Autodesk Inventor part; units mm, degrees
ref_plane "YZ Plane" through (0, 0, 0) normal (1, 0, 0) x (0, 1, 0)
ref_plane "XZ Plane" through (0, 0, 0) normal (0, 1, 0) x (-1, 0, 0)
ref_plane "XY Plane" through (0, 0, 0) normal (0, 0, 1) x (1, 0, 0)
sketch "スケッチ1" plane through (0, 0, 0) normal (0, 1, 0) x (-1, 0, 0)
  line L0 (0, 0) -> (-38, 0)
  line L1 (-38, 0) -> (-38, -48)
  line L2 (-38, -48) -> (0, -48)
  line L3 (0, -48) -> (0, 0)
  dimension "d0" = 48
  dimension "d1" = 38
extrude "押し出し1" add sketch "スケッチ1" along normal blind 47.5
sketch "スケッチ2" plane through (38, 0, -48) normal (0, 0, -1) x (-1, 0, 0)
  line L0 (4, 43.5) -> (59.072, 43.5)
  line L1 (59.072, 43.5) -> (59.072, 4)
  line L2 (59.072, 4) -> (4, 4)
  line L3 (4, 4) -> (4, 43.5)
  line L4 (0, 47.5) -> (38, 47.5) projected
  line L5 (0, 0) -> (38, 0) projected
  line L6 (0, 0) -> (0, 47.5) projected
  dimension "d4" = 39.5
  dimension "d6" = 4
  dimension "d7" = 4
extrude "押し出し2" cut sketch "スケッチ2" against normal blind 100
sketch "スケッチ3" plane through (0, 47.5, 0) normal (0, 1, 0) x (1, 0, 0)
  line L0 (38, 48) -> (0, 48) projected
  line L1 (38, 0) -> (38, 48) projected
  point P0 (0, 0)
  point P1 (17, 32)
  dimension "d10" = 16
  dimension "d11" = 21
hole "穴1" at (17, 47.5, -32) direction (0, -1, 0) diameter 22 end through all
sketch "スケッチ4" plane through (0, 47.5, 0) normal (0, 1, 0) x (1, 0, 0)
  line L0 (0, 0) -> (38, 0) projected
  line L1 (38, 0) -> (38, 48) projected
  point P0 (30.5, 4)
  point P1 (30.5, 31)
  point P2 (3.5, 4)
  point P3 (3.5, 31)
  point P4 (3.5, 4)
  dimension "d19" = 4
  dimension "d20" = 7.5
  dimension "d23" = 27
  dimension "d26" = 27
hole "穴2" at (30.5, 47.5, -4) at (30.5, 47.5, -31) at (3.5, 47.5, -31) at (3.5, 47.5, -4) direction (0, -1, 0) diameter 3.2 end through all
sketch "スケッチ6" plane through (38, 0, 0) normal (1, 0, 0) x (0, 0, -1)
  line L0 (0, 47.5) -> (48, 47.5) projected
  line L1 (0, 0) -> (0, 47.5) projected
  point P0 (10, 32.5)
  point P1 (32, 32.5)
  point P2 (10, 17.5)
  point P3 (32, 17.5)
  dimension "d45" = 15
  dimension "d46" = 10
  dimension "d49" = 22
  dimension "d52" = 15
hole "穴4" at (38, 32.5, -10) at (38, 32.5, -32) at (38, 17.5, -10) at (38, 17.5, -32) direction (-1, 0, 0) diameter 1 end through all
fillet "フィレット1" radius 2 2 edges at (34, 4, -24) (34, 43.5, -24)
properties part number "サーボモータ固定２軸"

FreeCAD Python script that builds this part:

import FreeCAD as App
import Part
import Sketcher


def edges_at(feature, points):
    """Names of the edges that pass closest to the given points."""
    edges = feature.Shape.Edges
    near = lambda p: min(range(len(edges)), key=lambda i: edges[i].distToShape(Part.Vertex(*p))[0])
    return sorted({f"Edge{near(p) + 1}" for p in points})

doc = App.newDocument("Part")
body = doc.addObject("PartDesign::Body", "Body")

# Sketch on XZ plane
sketch1 = body.newObject("Sketcher::SketchObject", "Sketch")
sketch1.AttachmentSupport = (doc.getObject("XZ_Plane"), [""])
sketch1.MapMode = "FlatFace"
sketch1.addGeometry(Part.LineSegment(App.Vector(0, -48, 0), App.Vector(0, 0, 0)), False)
sketch1.addGeometry(Part.LineSegment(App.Vector(0, 0, 0), App.Vector(38, 0, 0)), False)
sketch1.addGeometry(Part.LineSegment(App.Vector(38, 0, 0), App.Vector(38, -48, 0)), False)
sketch1.addGeometry(Part.LineSegment(App.Vector(38, -48, 0), App.Vector(0, -48, 0)), False)
sketch1.addConstraint(Sketcher.Constraint("Coincident", 0, 2, 1, 1))
sketch1.addConstraint(Sketcher.Constraint("Coincident", 1, 2, 2, 1))
sketch1.addConstraint(Sketcher.Constraint("Coincident", 2, 2, 3, 1))
sketch1.addConstraint(Sketcher.Constraint("Coincident", 3, 2, 0, 1))
sketch1.addConstraint(Sketcher.Constraint("Vertical", 0))
sketch1.addConstraint(Sketcher.Constraint("Horizontal", 1))
sketch1.addConstraint(Sketcher.Constraint("Vertical", 2))
sketch1.addConstraint(Sketcher.Constraint("Horizontal", 3))
sketch1.addConstraint(Sketcher.Constraint("Coincident", 0, 2, -1, 1))
sketch1.addConstraint(Sketcher.Constraint("DistanceX", 1, 1, 1, 2, 38.0))
sketch1.addConstraint(Sketcher.Constraint("DistanceY", 0, 1, 0, 2, 48.0))
pad1 = body.newObject("PartDesign::Pad", "Pad")
pad1.Profile = sketch1
pad1.Length = 47.5
pad1.Reversed = True

# Sketch on XY plane
sketch2 = body.newObject("Sketcher::SketchObject", "Sketch001")
sketch2.AttachmentSupport = (doc.getObject("XY_Plane"), [""])
sketch2.MapMode = "FlatFace"
sketch2.AttachmentOffset = App.Placement(App.Vector(0, 0, -48), App.Rotation())
sketch2.addGeometry(Part.LineSegment(App.Vector(-21.072, 43.5, 0), App.Vector(34, 43.5, 0)), False)
sketch2.addGeometry(Part.LineSegment(App.Vector(34, 43.5, 0), App.Vector(34, 4, 0)), False)
sketch2.addGeometry(Part.LineSegment(App.Vector(34, 4, 0), App.Vector(-21.072, 4, 0)), False)
sketch2.addGeometry(Part.LineSegment(App.Vector(-21.072, 4, 0), App.Vector(-21.072, 43.5, 0)), False)
sketch2.addConstraint(Sketcher.Constraint("Coincident", 0, 2, 1, 1))
sketch2.addConstraint(Sketcher.Constraint("Coincident", 1, 2, 2, 1))
sketch2.addConstraint(Sketcher.Constraint("Coincident", 2, 2, 3, 1))
sketch2.addConstraint(Sketcher.Constraint("Coincident", 3, 2, 0, 1))
sketch2.addConstraint(Sketcher.Constraint("Horizontal", 0))
sketch2.addConstraint(Sketcher.Constraint("Vertical", 1))
sketch2.addConstraint(Sketcher.Constraint("Horizontal", 2))
sketch2.addConstraint(Sketcher.Constraint("Vertical", 3))
sketch2.addConstraint(Sketcher.Constraint("DistanceY", 1, 2, 1, 1, 39.5))
sketch2.addConstraint(Sketcher.Constraint("DistanceY", -1, 1, 1, 2, 4.0))
sketch2.addConstraint(Sketcher.Constraint("DistanceX", -1, 1, 0, 2, 34.0))
sketch2.addConstraint(Sketcher.Constraint("DistanceX", 0, 1, 0, 2, 55.072))
pocket1 = body.newObject("PartDesign::Pocket", "Pocket")
pocket1.Profile = sketch2
pocket1.Length = 100
pocket1.Reversed = True

# Sketch on XZ plane
sketch3 = body.newObject("Sketcher::SketchObject", "Sketch002")
sketch3.AttachmentSupport = (doc.getObject("XZ_Plane"), [""])
sketch3.MapMode = "FlatFace"
sketch3.AttachmentOffset = App.Placement(App.Vector(0, 0, -47.5), App.Rotation())
sketch3.addGeometry(Part.Circle(App.Vector(17, -32, 0), App.Vector(0, 0, 1), 11), False)
sketch3.addConstraint(Sketcher.Constraint("Diameter", 0, 22.0))
sketch3.addConstraint(Sketcher.Constraint("DistanceX", -1, 1, 0, 3, 17.0))
sketch3.addConstraint(Sketcher.Constraint("DistanceY", 0, 3, -1, 1, 32.0))
doc.recompute()
hole = body.newObject("PartDesign::Hole", "Hole")
hole.Profile = sketch3
hole.ThreadType = "None"
hole.Diameter = 22
hole.DepthType = "ThroughAll"
hole.Reversed = True

# Sketch on XZ plane
sketch4 = body.newObject("Sketcher::SketchObject", "Sketch003")
sketch4.AttachmentSupport = (doc.getObject("XZ_Plane"), [""])
sketch4.MapMode = "FlatFace"
sketch4.AttachmentOffset = App.Placement(App.Vector(0, 0, -47.5), App.Rotation())
sketch4.addGeometry(Part.Circle(App.Vector(30.5, -4, 0), App.Vector(0, 0, 1), 1.6), False)
sketch4.addGeometry(Part.Circle(App.Vector(30.5, -31, 0), App.Vector(0, 0, 1), 1.6), False)
sketch4.addGeometry(Part.Circle(App.Vector(3.5, -31, 0), App.Vector(0, 0, 1), 1.6), False)
sketch4.addGeometry(Part.Circle(App.Vector(3.5, -4, 0), App.Vector(0, 0, 1), 1.6), False)
sketch4.addConstraint(Sketcher.Constraint("Equal", 0, 1))
sketch4.addConstraint(Sketcher.Constraint("Equal", 1, 2))
sketch4.addConstraint(Sketcher.Constraint("Equal", 2, 3))
sketch4.addConstraint(Sketcher.Constraint("Horizontal", 1, 3, 2, 3))
sketch4.addConstraint(Sketcher.Constraint("Horizontal", 0, 3, 3, 3))
sketch4.addConstraint(Sketcher.Constraint("Vertical", 0, 3, 1, 3))
sketch4.addConstraint(Sketcher.Constraint("Vertical", 2, 3, 3, 3))
sketch4.addConstraint(Sketcher.Constraint("Diameter", 0, 3.2))
sketch4.addConstraint(Sketcher.Constraint("DistanceY", 0, 3, -1, 1, 4.0))
sketch4.addConstraint(Sketcher.Constraint("DistanceY", 1, 3, -1, 1, 31.0))
sketch4.addConstraint(Sketcher.Constraint("DistanceX", 2, 3, 1, 3, 27.0))
sketch4.addConstraint(Sketcher.Constraint("DistanceX", -1, 1, 0, 3, 30.5))
doc.recompute()
hole2 = body.newObject("PartDesign::Hole", "Hole001")
hole2.Profile = sketch4
hole2.ThreadType = "None"
hole2.Diameter = 3.2
hole2.DepthType = "ThroughAll"
hole2.Reversed = True

# Sketch on YZ plane
sketch5 = body.newObject("Sketcher::SketchObject", "Sketch004")
sketch5.AttachmentSupport = (doc.getObject("YZ_Plane"), [""])
sketch5.MapMode = "FlatFace"
sketch5.AttachmentOffset = App.Placement(App.Vector(0, 0, 38), App.Rotation())
sketch5.addGeometry(Part.Circle(App.Vector(32.5, -10, 0), App.Vector(0, 0, 1), 0.5), False)
sketch5.addGeometry(Part.Circle(App.Vector(32.5, -32, 0), App.Vector(0, 0, 1), 0.5), False)
sketch5.addGeometry(Part.Circle(App.Vector(17.5, -10, 0), App.Vector(0, 0, 1), 0.5), False)
sketch5.addGeometry(Part.Circle(App.Vector(17.5, -32, 0), App.Vector(0, 0, 1), 0.5), False)
sketch5.addConstraint(Sketcher.Constraint("Equal", 0, 1))
sketch5.addConstraint(Sketcher.Constraint("Equal", 1, 2))
sketch5.addConstraint(Sketcher.Constraint("Equal", 2, 3))
sketch5.addConstraint(Sketcher.Constraint("Horizontal", 0, 3, 2, 3))
sketch5.addConstraint(Sketcher.Constraint("Horizontal", 1, 3, 3, 3))
sketch5.addConstraint(Sketcher.Constraint("Vertical", 0, 3, 1, 3))
sketch5.addConstraint(Sketcher.Constraint("Vertical", 2, 3, 3, 3))
sketch5.addConstraint(Sketcher.Constraint("Diameter", 0, 1.0))
sketch5.addConstraint(Sketcher.Constraint("DistanceY", 0, 3, -1, 1, 10.0))
sketch5.addConstraint(Sketcher.Constraint("DistanceY", 1, 3, -1, 1, 32.0))
sketch5.addConstraint(Sketcher.Constraint("DistanceX", 2, 3, 0, 3, 15.0))
sketch5.addConstraint(Sketcher.Constraint("DistanceX", -1, 1, 0, 3, 32.5))
doc.recompute()
hole3 = body.newObject("PartDesign::Hole", "Hole002")
hole3.Profile = sketch5
hole3.ThreadType = "None"
hole3.Diameter = 1
hole3.DepthType = "ThroughAll"
doc.recompute()

fillet = body.newObject("PartDesign::Fillet", "Fillet")
fillet.Base = (hole3, edges_at(hole3, [(34, 4, -24), (34, 43.5, -24)]))
fillet.Radius = 2

doc.recompute()
